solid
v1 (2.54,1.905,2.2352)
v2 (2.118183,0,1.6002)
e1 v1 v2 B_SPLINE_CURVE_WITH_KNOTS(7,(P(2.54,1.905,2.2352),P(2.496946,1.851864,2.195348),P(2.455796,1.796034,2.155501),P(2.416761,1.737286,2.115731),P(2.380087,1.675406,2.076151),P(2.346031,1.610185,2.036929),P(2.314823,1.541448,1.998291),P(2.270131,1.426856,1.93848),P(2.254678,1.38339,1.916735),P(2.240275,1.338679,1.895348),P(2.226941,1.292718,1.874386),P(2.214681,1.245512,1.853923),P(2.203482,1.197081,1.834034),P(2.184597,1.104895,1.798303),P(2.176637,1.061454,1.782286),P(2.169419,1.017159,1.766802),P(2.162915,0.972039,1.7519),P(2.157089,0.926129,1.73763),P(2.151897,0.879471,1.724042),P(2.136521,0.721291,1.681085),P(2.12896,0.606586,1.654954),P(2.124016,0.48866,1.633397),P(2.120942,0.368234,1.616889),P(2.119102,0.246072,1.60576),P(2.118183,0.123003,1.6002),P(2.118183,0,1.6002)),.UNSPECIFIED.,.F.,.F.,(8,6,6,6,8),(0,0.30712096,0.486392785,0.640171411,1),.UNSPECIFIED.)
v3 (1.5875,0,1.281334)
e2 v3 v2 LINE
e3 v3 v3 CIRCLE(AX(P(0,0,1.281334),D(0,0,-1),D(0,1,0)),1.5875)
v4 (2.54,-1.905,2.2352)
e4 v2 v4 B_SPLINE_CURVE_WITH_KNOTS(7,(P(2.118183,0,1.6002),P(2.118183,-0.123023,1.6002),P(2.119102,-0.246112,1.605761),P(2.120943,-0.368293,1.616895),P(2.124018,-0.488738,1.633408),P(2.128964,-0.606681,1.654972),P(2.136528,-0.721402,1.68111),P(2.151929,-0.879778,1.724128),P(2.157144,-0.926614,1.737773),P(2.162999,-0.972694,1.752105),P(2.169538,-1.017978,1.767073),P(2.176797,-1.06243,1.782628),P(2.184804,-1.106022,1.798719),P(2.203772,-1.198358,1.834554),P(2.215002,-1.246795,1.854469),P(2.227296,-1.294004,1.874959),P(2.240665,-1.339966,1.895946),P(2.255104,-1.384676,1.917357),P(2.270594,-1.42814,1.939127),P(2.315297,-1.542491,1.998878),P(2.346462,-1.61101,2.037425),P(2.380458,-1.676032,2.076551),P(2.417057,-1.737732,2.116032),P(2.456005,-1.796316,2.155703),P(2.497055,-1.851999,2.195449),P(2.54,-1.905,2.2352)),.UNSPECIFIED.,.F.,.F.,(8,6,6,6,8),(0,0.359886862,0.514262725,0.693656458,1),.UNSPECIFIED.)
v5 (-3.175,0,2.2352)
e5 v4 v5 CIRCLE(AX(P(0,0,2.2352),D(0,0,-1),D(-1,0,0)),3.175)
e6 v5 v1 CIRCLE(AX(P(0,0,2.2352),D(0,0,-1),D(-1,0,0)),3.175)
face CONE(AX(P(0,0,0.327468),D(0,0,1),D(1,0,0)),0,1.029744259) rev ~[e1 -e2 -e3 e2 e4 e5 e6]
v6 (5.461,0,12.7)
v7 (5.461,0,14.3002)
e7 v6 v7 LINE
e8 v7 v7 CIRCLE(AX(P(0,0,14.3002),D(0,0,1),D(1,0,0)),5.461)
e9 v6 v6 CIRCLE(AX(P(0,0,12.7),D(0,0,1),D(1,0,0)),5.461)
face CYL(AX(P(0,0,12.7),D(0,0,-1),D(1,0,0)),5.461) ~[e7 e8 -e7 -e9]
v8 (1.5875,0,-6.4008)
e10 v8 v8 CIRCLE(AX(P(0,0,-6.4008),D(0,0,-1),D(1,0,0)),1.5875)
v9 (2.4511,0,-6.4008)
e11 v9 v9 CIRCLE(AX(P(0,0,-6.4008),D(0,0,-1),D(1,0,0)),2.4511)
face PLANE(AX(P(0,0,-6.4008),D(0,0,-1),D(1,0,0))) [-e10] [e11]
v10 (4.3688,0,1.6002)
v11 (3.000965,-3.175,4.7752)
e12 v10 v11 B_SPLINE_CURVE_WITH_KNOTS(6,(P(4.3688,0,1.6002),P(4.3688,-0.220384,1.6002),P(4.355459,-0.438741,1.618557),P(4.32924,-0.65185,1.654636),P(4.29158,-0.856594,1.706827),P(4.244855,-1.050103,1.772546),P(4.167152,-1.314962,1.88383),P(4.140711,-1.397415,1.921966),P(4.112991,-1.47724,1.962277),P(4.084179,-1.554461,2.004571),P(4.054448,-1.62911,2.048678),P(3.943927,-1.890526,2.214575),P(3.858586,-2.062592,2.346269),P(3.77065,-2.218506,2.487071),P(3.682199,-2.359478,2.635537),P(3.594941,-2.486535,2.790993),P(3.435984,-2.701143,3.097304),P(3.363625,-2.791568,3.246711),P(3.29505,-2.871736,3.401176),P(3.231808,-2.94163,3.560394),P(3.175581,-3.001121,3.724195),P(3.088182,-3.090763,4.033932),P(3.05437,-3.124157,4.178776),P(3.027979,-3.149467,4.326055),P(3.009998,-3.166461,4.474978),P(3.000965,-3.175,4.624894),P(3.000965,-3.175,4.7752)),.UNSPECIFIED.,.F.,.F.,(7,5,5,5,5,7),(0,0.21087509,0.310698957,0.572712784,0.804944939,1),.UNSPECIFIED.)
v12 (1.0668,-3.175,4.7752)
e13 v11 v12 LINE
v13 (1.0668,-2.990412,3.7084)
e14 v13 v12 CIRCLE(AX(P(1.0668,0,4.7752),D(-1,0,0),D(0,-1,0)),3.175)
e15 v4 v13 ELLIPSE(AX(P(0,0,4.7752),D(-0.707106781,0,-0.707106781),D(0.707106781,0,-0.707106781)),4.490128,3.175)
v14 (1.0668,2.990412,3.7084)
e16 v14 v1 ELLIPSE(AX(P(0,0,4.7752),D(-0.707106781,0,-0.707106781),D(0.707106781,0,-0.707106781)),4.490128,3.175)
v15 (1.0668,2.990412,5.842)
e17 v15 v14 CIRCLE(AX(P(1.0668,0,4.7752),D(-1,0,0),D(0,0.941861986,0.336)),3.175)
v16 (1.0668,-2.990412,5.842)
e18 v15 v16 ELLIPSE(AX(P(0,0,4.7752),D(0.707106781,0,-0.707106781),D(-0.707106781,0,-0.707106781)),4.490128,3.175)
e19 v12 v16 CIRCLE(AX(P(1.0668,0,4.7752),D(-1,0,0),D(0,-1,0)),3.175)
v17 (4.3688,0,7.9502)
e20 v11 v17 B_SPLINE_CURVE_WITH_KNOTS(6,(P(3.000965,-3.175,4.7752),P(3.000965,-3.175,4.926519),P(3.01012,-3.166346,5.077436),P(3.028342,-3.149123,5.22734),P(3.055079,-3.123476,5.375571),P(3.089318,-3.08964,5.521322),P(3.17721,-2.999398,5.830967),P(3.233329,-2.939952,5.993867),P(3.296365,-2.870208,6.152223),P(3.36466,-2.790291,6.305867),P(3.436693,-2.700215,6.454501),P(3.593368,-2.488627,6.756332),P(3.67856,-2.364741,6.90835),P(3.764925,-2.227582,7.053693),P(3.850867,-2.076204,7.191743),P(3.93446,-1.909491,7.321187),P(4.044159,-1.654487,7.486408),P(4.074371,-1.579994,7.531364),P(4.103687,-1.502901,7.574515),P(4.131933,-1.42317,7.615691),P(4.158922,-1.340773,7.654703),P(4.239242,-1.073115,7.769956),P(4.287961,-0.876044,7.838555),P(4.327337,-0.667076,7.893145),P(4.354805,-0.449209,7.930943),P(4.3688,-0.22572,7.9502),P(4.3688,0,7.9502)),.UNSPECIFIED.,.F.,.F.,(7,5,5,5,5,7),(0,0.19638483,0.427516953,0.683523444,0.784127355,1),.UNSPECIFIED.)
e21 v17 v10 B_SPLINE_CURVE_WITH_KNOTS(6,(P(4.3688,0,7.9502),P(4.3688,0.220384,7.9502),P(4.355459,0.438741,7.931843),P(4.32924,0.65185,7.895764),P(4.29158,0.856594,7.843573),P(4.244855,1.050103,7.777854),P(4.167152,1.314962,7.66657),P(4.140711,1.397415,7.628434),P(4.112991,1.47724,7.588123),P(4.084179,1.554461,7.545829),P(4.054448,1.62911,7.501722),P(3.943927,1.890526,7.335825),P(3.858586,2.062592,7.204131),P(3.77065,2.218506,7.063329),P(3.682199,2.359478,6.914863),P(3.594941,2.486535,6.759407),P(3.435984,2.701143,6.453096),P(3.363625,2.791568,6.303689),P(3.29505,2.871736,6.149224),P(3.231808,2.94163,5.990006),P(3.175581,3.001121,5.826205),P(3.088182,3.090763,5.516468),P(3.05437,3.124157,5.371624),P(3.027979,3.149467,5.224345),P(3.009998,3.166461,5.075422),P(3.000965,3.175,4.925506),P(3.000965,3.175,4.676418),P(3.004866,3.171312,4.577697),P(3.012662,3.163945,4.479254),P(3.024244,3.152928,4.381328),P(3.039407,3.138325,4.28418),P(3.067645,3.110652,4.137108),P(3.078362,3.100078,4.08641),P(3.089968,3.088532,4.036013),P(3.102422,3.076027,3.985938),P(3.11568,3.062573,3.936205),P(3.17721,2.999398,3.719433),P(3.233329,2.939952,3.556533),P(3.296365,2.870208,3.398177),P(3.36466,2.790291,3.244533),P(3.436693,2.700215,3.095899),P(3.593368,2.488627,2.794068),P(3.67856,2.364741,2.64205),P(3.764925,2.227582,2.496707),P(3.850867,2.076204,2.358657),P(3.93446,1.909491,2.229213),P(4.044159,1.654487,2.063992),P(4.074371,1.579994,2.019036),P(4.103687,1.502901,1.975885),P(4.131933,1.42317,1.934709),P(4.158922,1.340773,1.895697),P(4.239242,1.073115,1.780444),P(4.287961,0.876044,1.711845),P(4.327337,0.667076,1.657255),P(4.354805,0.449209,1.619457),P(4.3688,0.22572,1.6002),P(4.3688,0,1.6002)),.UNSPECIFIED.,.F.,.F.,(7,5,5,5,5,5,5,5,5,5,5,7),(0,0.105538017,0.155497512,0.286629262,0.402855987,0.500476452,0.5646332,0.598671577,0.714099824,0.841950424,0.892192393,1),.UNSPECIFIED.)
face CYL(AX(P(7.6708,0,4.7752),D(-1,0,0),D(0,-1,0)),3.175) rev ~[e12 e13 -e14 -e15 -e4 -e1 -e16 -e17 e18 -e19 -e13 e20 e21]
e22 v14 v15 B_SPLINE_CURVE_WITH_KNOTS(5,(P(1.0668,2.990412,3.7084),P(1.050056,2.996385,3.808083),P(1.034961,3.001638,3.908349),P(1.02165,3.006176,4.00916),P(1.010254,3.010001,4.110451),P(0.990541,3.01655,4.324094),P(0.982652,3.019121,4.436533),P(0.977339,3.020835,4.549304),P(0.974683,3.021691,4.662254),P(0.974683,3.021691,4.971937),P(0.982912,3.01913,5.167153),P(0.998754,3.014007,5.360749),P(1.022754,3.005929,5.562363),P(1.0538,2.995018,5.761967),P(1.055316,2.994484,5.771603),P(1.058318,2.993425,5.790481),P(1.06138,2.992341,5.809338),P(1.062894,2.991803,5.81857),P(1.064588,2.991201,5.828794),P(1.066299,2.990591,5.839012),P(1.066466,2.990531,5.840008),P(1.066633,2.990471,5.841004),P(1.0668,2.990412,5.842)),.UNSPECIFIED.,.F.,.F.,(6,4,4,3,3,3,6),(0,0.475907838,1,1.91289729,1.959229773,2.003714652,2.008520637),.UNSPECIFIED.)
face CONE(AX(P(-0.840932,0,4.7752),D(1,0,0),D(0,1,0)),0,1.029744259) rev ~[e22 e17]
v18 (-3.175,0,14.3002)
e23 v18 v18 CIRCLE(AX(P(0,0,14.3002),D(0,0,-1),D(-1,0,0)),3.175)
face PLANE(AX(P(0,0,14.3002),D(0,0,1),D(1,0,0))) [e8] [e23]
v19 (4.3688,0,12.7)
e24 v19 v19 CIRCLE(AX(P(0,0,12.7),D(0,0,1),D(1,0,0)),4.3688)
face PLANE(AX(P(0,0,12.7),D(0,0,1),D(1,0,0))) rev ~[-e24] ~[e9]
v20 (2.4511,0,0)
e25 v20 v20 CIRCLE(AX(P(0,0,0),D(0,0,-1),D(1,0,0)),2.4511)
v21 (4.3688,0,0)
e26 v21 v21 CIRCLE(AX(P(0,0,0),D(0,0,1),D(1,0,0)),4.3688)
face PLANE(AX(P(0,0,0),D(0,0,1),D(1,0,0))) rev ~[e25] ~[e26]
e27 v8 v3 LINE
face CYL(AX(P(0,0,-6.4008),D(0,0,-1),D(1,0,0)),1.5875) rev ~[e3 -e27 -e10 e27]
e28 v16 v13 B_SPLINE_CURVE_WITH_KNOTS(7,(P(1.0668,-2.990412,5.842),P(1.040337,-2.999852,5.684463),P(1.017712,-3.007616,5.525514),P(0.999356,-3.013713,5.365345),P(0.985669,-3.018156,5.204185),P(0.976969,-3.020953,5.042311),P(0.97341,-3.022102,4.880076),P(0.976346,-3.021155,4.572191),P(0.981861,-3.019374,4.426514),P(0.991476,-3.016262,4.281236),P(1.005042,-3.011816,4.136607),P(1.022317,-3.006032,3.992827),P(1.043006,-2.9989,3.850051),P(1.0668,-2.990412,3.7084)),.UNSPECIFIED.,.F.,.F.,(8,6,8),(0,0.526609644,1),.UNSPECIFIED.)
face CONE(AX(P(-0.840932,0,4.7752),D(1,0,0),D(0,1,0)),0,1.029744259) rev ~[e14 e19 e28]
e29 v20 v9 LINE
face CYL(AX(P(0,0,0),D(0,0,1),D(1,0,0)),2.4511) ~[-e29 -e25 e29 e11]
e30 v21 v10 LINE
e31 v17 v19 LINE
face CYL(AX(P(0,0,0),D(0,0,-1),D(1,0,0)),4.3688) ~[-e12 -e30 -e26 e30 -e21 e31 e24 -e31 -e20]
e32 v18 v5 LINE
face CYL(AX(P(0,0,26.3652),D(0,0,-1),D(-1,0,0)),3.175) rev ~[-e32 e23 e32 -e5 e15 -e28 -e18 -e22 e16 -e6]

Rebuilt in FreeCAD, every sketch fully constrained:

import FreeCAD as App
import Part
import Sketcher

V = App.Vector
Q = App.Units.Quantity

doc = App.newDocument("Part")
body = doc.addObject("PartDesign::Body", "Body")

sketch1 = doc.addObject("Sketcher::SketchObject", "Sketch")
body.addObject(sketch1)
sketch1.AttachmentSupport = (doc.XY_Plane, [""])
sketch1.MapMode = "FlatFace"
sketch1.addGeometry(Part.Circle(V(0, 0, 0), V(0, 0, 1), 4.4), False)
sketch1.addConstraint([
    Sketcher.Constraint("Coincident", 0, 3, -1, 1),
    Sketcher.Constraint("Diameter", 0, Q("0.344 in")),
])
pad1 = doc.addObject("PartDesign::Pad", "Pad")
body.addObject(pad1)
pad1.Profile = sketch1
pad1.Length = Q("0.5 in")

sketch2 = doc.addObject("Sketcher::SketchObject", "Sketch001")
body.addObject(sketch2)
sketch2.AttachmentSupport = (doc.XY_Plane, [""])
sketch2.MapMode = "FlatFace"
sketch2.AttachmentOffset = App.Placement(V(0, 0, 0.5 * 25.4), App.Rotation())
sketch2.addGeometry(Part.Circle(V(0, 0, 0), V(0, 0, 1), 5), False)
sketch2.addConstraint([
    Sketcher.Constraint("Coincident", 0, 3, -1, 1),
    Sketcher.Constraint("Diameter", 0, Q("0.43 in")),
])
pad2 = doc.addObject("PartDesign::Pad", "Pad001")
body.addObject(pad2)
pad2.Profile = sketch2
pad2.Length = Q("0.063 in")

sketch3 = doc.addObject("Sketcher::SketchObject", "Sketch002")
body.addObject(sketch3)
sketch3.AttachmentSupport = (doc.XY_Plane, [""])
sketch3.MapMode = "FlatFace"
sketch3.AttachmentOffset = App.Placement(V(0, 0, 0.563 * 25.4), App.Rotation())
sketch3.addGeometry(Part.Circle(V(0, 0, 0), V(0, 0, 1), 3.2), False)
sketch3.addConstraint([
    Sketcher.Constraint("Coincident", 0, 3, -1, 1),
    Sketcher.Constraint("Diameter", 0, Q("0.25 in")),
])
doc.recompute()
hole = doc.addObject("PartDesign::Hole", "Hole")
body.addObject(hole)
hole.Profile = sketch3
hole.ThreadType = "None"
hole.Diameter = Q("0.25 in")
hole.DepthType = "Dimension"
hole.Depth = Q("0.475 in")
hole.DrillPoint = "Angled"
hole.DrillPointAngle = 118

sketch4 = doc.addObject("Sketcher::SketchObject", "Sketch003")
body.addObject(sketch4)
sketch4.AttachmentSupport = (doc.XY_Plane, [""])
sketch4.MapMode = "FlatFace"
sketch4.addGeometry(Part.Circle(V(0, 0, 0), V(0, 0, 1), 2.5), False)
sketch4.addConstraint([
    Sketcher.Constraint("Coincident", 0, 3, -1, 1),
    Sketcher.Constraint("Diameter", 0, Q("0.193 in")),
])
pad3 = doc.addObject("PartDesign::Pad", "Pad002")
body.addObject(pad3)
pad3.Profile = sketch4
pad3.Length = Q("0.252 in")
pad3.Reversed = True

sketch5 = doc.addObject("Sketcher::SketchObject", "Sketch004")
body.addObject(sketch5)
sketch5.AttachmentSupport = (doc.XY_Plane, [""])
sketch5.MapMode = "FlatFace"
sketch5.AttachmentOffset = App.Placement(V(0, 0, -0.252 * 25.4), App.Rotation())
sketch5.addGeometry(Part.Circle(V(0, 0, 0), V(0, 0, 1), 1.6), False)
sketch5.addConstraint([
    Sketcher.Constraint("Coincident", 0, 3, -1, 1),
    Sketcher.Constraint("Diameter", 0, Q("0.125 in")),
])
pocket1 = doc.addObject("PartDesign::Pocket", "Pocket")
body.addObject(pocket1)
pocket1.Profile = sketch5
pocket1.Type = "ThroughAll"
pocket1.Reversed = True

sketch6 = doc.addObject("Sketcher::SketchObject", "Sketch005")
body.addObject(sketch6)
sketch6.AttachmentSupport = (doc.YZ_Plane, [""])
sketch6.MapMode = "FlatFace"
sketch6.AttachmentOffset = App.Placement(V(0, 0, 0.172 * 25.4), App.Rotation())
sketch6.addGeometry(Part.Circle(V(0, 4.8, 0), V(0, 0, 1), 3.2), False)
sketch6.addConstraint([
    Sketcher.Constraint("PointOnObject", 0, 3, -2),
    Sketcher.Constraint("Diameter", 0, Q("0.25 in")),
    Sketcher.Constraint("DistanceY", -1, 1, 0, 3, Q("0.188 in")),
])
doc.recompute()
hole2 = doc.addObject("PartDesign::Hole", "Hole001")
body.addObject(hole2)
hole2.Profile = sketch6
hole2.ThreadType = "None"
hole2.Diameter = Q("0.25 in")
hole2.DepthType = "Dimension"
hole2.Depth = Q("0.13 in")
hole2.DrillPoint = "Angled"
hole2.DrillPointAngle = 118

doc.recompute()
